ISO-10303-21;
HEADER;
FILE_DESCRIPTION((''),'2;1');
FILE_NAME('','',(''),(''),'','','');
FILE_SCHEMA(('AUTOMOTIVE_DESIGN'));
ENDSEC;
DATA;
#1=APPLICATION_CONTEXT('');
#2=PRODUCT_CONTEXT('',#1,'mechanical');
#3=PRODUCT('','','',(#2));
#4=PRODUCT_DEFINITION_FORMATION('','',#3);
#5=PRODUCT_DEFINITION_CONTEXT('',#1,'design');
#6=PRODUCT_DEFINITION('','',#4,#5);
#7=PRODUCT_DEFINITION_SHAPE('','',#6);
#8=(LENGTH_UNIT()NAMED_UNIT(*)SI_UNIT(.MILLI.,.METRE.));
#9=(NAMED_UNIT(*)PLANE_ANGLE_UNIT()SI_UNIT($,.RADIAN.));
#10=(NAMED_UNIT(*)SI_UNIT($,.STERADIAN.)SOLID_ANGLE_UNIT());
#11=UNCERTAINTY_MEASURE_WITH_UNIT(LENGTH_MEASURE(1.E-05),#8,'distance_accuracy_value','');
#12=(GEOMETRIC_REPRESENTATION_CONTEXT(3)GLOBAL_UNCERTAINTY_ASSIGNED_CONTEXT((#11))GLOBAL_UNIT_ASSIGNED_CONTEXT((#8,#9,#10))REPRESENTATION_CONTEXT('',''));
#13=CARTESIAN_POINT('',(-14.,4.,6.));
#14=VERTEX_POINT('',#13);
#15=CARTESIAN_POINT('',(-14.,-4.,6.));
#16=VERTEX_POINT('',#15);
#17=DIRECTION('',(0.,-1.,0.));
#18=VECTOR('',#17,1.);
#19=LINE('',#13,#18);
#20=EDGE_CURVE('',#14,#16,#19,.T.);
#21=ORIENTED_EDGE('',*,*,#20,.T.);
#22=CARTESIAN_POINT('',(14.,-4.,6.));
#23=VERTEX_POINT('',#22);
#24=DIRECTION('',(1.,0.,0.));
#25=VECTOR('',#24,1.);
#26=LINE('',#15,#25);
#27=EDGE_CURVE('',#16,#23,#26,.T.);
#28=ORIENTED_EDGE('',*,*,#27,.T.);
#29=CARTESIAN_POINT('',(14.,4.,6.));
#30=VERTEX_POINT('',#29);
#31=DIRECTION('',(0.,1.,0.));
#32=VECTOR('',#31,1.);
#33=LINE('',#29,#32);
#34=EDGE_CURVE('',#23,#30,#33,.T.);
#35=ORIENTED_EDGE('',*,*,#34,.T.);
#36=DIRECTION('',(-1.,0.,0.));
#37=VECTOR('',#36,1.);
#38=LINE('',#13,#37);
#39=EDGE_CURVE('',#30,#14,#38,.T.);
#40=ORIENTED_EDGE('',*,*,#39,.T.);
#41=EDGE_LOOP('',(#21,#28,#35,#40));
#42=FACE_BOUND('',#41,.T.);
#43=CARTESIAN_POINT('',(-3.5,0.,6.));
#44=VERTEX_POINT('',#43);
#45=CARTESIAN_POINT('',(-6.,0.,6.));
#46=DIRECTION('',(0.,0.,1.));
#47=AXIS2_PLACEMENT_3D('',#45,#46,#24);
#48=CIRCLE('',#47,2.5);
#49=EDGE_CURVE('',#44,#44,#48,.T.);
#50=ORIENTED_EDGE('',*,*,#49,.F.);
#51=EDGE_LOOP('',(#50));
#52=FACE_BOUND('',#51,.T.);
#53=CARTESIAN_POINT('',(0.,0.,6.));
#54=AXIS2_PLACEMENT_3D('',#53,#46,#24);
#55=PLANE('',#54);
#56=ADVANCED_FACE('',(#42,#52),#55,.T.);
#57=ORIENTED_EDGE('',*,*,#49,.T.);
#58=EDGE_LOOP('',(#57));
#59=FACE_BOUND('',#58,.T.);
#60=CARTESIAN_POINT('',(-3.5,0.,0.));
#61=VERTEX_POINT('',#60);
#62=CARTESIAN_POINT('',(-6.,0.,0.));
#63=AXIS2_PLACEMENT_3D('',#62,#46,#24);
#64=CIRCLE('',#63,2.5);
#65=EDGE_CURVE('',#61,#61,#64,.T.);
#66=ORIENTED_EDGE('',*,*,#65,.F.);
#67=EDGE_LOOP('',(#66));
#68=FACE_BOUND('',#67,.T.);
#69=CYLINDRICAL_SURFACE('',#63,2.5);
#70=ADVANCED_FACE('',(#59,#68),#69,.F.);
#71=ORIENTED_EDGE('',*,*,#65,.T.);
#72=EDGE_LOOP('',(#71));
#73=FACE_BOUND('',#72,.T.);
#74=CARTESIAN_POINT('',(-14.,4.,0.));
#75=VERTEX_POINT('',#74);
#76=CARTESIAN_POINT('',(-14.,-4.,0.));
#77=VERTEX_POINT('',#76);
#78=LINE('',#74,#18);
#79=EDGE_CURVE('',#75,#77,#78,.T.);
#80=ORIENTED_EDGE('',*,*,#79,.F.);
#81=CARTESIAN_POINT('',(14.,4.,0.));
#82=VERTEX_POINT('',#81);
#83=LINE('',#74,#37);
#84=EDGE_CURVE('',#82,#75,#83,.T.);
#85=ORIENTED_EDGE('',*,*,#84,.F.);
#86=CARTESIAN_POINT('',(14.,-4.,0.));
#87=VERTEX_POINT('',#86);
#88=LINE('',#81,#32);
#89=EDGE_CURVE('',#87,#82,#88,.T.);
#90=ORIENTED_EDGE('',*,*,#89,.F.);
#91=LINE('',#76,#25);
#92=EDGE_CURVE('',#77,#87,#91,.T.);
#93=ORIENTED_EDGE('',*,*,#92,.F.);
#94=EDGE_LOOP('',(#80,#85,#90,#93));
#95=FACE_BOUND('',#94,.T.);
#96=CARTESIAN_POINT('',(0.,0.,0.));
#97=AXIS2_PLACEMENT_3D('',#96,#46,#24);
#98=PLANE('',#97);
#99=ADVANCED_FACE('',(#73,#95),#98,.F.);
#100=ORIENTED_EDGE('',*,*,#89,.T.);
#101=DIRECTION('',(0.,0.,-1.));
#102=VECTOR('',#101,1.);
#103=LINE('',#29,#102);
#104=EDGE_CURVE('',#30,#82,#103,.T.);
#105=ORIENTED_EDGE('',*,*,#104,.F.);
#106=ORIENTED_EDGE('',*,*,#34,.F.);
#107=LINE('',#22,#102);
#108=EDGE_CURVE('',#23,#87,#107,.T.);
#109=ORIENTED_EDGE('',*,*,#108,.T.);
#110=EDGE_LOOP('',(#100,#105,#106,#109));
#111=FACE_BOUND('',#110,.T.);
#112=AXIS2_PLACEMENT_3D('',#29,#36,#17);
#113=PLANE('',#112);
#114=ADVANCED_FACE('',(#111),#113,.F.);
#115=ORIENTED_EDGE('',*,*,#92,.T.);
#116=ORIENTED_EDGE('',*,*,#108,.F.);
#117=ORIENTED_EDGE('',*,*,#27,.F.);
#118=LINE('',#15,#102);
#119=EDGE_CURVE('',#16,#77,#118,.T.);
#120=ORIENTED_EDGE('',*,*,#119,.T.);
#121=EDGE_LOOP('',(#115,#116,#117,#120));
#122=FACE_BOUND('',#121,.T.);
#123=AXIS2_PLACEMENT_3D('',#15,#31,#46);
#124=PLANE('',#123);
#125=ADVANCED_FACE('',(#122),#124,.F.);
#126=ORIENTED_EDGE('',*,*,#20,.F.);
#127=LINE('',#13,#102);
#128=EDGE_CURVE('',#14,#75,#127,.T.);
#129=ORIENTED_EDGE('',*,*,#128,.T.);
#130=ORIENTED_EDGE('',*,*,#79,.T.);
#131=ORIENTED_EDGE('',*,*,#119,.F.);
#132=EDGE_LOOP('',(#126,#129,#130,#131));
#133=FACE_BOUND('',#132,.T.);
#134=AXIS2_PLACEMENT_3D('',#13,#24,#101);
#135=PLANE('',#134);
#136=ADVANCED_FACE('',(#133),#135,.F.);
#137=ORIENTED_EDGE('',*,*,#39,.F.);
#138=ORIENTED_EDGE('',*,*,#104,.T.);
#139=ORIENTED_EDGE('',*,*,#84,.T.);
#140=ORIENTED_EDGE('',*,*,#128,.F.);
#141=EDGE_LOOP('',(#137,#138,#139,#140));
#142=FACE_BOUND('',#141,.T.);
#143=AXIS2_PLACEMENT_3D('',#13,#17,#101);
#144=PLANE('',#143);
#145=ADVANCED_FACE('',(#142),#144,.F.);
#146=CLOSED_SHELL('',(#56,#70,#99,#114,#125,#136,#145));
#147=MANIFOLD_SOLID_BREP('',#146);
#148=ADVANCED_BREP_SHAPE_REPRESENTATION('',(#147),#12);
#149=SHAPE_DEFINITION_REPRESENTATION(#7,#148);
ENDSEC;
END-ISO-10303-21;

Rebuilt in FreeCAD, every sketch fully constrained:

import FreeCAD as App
import Part
import Sketcher
Q = App.Units.Quantity

doc = App.newDocument("Part")
body = doc.addObject("PartDesign::Body", "Body")

# Sketch on XY plane
sketch1 = body.newObject("Sketcher::SketchObject", "Sketch")
sketch1.AttachmentSupport = (doc.getObject("XY_Plane"), [""])
sketch1.MapMode = "FlatFace"
sketch1.addGeometry([
    Part.LineSegment(App.Vector(-14, 4, 0), App.Vector(-14, -4, 0)),
    Part.LineSegment(App.Vector(-14, -4, 0), App.Vector(14, -4, 0)),
    Part.LineSegment(App.Vector(14, -4, 0), App.Vector(14, 4, 0)),
    Part.LineSegment(App.Vector(14, 4, 0), App.Vector(-14, 4, 0)),
], False)
sketch1.addConstraint([
    Sketcher.Constraint("Coincident", 0, 2, 1, 1),
    Sketcher.Constraint("Coincident", 1, 2, 2, 1),
    Sketcher.Constraint("Coincident", 2, 2, 3, 1),
    Sketcher.Constraint("Coincident", 3, 2, 0, 1),
    Sketcher.Constraint("Vertical", 0),
    Sketcher.Constraint("Horizontal", 1),
    Sketcher.Constraint("Vertical", 2),
    Sketcher.Constraint("Horizontal", 3),
    Sketcher.Constraint("Symmetric", 0, 2, 2, 2, -1, 1),
    Sketcher.Constraint("DistanceX", 1, 1, 1, 2, Q("28 mm")),
    Sketcher.Constraint("DistanceY", 0, 2, 0, 1, Q("8 mm")),
])
pad1 = body.newObject("PartDesign::Pad", "Pad")
pad1.Profile = sketch1
pad1.Length = 6

# Sketch on XY plane
sketch2 = body.newObject("Sketcher::SketchObject", "Sketch001")
sketch2.AttachmentSupport = (doc.getObject("XY_Plane"), [""])
sketch2.MapMode = "FlatFace"
sketch2.AttachmentOffset = App.Placement(App.Vector(0, 0, 6), App.Rotation())
sketch2.addGeometry(Part.Circle(App.Vector(-6, 0, 0), App.Vector(0, 0, 1), 2.5), False)
sketch2.addConstraint([
    Sketcher.Constraint("PointOnObject", 0, 3, -1),
    Sketcher.Constraint("Diameter", 0, Q("5 mm")),
    Sketcher.Constraint("DistanceX", 0, 3, -1, 1, Q("6 mm")),
])
pocket1 = body.newObject("PartDesign::Pocket", "Pocket")
pocket1.Profile = sketch2
pocket1.Type = "ThroughAll"

doc.recompute()
